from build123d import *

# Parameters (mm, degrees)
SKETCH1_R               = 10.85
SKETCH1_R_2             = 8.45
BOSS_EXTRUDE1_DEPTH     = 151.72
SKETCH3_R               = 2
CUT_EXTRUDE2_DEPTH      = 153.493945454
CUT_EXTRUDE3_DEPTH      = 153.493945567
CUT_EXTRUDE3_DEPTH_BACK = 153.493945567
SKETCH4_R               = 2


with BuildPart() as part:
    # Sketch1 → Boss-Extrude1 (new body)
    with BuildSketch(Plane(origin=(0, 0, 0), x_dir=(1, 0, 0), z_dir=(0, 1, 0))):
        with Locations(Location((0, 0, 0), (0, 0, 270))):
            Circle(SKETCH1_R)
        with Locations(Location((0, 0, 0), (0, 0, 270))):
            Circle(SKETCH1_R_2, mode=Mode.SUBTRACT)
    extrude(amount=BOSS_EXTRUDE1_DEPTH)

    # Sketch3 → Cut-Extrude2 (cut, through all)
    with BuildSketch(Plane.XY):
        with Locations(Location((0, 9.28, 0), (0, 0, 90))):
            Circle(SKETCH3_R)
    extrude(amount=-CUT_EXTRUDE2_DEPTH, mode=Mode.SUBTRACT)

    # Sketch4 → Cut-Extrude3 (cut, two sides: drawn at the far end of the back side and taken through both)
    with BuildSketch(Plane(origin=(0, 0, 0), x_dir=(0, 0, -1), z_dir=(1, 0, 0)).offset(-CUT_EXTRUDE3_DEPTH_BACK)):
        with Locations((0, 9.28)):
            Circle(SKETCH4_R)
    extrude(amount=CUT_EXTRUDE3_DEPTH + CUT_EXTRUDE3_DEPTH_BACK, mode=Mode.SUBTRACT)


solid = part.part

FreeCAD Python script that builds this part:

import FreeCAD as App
import Part
import Sketcher

V = App.Vector
Q = App.Units.Quantity

doc = App.newDocument("Part")
body = doc.addObject("PartDesign::Body", "Body")

sketch1 = body.newObject("Sketcher::SketchObject", "Sketch")
sketch1.AttachmentSupport = (doc.getObject("XZ_Plane"), [""])
sketch1.MapMode = "FlatFace"
sketch1.addGeometry(Part.Circle(V(0, 0, 0), V(0, 0, 1), 11), False)
sketch1.addGeometry(Part.Circle(V(0, 0, 0), V(0, 0, 1), 8), False)
sketch1.addConstraint(Sketcher.Constraint("Coincident", 0, 3, -1, 1))
sketch1.addConstraint(Sketcher.Constraint("Coincident", 1, 3, -1, 1))
sketch1.addConstraint(Sketcher.Constraint("Diameter", 0, Q("21.7 mm")))
sketch1.addConstraint(Sketcher.Constraint("Diameter", 1, Q("16.9 mm")))
pad1 = body.newObject("PartDesign::Pad", "Pad")
pad1.Profile = sketch1
pad1.Length = 151.72
pad1.Reversed = True

sketch2 = body.newObject("Sketcher::SketchObject", "Sketch001")
sketch2.AttachmentSupport = (doc.getObject("XY_Plane"), [""])
sketch2.MapMode = "FlatFace"
sketch2.addGeometry(Part.Circle(V(0, 9.3, 0), V(0, 0, 1), 2), False)
sketch2.addConstraint(Sketcher.Constraint("PointOnObject", 0, 3, -2))
sketch2.addConstraint(Sketcher.Constraint("Diameter", 0, Q("4 mm")))
sketch2.addConstraint(Sketcher.Constraint("DistanceY", -1, 1, 0, 3, Q("9.28 mm")))
pocket1 = body.newObject("PartDesign::Pocket", "Pocket")
pocket1.Profile = sketch2
pocket1.Type = "ThroughAll"

sketch3 = body.newObject("Sketcher::SketchObject", "Sketch002")
sketch3.AttachmentSupport = (doc.getObject("YZ_Plane"), [""])
sketch3.MapMode = "FlatFace"
sketch3.addGeometry(Part.Circle(V(9.3, 0, 0), V(0, 0, 1), 2), False)
sketch3.addConstraint(Sketcher.Constraint("PointOnObject", 0, 3, -1))
sketch3.addConstraint(Sketcher.Constraint("Diameter", 0, Q("4 mm")))
sketch3.addConstraint(Sketcher.Constraint("DistanceX", -1, 1, 0, 3, Q("9.28 mm")))
pocket2 = body.newObject("PartDesign::Pocket", "Pocket001")
pocket2.Profile = sketch3
pocket2.Type = "ThroughAll"
pocket2.Midplane = True

doc.recompute()
